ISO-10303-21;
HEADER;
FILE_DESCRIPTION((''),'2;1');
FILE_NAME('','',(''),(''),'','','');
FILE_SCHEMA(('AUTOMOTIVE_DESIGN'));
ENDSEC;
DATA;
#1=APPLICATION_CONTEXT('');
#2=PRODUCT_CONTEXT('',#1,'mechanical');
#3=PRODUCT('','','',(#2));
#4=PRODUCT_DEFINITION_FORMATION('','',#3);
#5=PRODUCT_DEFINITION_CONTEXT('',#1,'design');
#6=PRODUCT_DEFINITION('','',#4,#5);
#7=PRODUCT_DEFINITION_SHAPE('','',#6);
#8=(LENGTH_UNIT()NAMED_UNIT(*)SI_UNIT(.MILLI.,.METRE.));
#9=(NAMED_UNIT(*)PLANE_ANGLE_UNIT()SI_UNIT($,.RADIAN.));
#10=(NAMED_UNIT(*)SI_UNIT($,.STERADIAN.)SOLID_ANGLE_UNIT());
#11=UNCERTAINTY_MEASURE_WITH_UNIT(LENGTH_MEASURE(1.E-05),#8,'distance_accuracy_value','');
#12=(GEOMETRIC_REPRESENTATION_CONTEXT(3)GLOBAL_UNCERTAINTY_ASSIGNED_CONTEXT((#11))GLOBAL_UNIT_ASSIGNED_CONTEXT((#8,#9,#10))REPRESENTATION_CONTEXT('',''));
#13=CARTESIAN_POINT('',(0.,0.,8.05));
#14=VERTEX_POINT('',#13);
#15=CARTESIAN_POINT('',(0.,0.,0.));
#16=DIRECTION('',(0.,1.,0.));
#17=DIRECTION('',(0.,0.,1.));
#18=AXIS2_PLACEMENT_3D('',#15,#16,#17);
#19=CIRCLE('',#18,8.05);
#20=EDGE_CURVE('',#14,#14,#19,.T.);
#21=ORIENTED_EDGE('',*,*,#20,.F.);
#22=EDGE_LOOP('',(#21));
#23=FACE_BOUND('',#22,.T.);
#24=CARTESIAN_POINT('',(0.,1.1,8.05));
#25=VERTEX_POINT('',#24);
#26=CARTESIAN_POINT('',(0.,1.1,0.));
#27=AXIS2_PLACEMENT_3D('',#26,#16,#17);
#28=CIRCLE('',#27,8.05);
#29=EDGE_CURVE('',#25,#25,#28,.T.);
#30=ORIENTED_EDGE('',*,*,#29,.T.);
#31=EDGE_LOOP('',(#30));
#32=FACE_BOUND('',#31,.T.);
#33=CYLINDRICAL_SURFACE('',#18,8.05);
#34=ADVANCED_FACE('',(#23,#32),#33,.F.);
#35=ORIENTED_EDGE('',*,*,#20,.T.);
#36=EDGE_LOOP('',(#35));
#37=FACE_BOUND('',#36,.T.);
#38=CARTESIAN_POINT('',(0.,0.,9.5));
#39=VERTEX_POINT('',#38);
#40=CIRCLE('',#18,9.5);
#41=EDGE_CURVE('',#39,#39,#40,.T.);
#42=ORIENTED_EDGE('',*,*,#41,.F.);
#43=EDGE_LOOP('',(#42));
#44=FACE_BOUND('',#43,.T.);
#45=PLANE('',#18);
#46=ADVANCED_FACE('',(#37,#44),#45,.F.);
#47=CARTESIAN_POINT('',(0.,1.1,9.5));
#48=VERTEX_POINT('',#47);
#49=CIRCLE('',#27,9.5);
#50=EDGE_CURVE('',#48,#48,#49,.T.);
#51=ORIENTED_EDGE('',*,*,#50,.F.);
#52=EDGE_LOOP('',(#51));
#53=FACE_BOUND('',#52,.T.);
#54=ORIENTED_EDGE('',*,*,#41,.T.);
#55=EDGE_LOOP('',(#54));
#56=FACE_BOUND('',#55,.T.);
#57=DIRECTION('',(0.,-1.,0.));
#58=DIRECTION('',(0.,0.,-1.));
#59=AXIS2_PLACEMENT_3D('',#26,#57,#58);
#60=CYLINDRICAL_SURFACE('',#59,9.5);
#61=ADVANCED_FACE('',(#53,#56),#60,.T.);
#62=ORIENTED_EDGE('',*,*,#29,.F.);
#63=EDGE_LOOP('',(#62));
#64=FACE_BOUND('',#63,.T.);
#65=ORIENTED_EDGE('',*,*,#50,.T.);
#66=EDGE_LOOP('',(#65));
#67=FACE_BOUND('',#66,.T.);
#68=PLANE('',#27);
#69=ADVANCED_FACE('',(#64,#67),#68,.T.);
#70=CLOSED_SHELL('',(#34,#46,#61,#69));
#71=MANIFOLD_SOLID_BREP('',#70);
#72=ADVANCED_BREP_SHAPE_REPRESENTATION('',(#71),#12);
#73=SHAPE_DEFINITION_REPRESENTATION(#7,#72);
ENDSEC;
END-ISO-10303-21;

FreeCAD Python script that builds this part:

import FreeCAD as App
import Part
import Sketcher
from FreeCAD import Vector
Q = App.Units.Quantity

doc = App.newDocument("Part")
params = doc.addObject("Spreadsheet::Sheet", "Params")
for row, (alias, value) in enumerate([
    ("sketch1_diameter", "19 mm"),
    ("pad1_length", "1.1 mm"),
    ("sketch2_diameter", "16.1 mm"),
], start=1):
    params.set(f"A{row}", alias)
    params.set(f"B{row}", "=" + value)
    params.setAlias(f"B{row}", alias)

body = doc.addObject("PartDesign::Body", "Body")

# Sketch on XZ plane
sketch1 = body.newObject("Sketcher::SketchObject", "Sketch")
sketch1.AttachmentSupport = (doc.getObject("XZ_Plane"), [""])
sketch1.MapMode = "FlatFace"
sketch1.addGeometry(Part.Circle(Vector(0, 0, 0), Vector(0, 0, 1), 10), False)
sketch1.addConstraint([
    Sketcher.Constraint("Coincident", 0, 3, -1, 1),
    Sketcher.Constraint("Diameter", 0, Q("19 mm")),
])
sketch1.setExpression("Constraints[1]", "Params.sketch1_diameter")
pad1 = body.newObject("PartDesign::Pad", "Pad")
pad1.Profile = sketch1
pad1.setExpression("Length", "Params.pad1_length")
pad1.Reversed = True

# Sketch on XZ plane
sketch2 = body.newObject("Sketcher::SketchObject", "Sketch001")
sketch2.AttachmentSupport = (doc.getObject("XZ_Plane"), [""])
sketch2.MapMode = "FlatFace"
sketch2.AttachmentOffset = App.Placement(Vector(0, 0, -1.1), App.Rotation())
sketch2.addGeometry(Part.Circle(Vector(0, 0, 0), Vector(0, 0, 1), 8), False)
sketch2.addConstraint([
    Sketcher.Constraint("Coincident", 0, 3, -1, 1),
    Sketcher.Constraint("Diameter", 0, Q("16.1 mm")),
])
sketch2.setExpression("Constraints[1]", "Params.sketch2_diameter")
pocket1 = body.newObject("PartDesign::Pocket", "Pocket")
pocket1.Profile = sketch2
pocket1.Type = "ThroughAll"
pocket1.Reversed = True

doc.recompute()
